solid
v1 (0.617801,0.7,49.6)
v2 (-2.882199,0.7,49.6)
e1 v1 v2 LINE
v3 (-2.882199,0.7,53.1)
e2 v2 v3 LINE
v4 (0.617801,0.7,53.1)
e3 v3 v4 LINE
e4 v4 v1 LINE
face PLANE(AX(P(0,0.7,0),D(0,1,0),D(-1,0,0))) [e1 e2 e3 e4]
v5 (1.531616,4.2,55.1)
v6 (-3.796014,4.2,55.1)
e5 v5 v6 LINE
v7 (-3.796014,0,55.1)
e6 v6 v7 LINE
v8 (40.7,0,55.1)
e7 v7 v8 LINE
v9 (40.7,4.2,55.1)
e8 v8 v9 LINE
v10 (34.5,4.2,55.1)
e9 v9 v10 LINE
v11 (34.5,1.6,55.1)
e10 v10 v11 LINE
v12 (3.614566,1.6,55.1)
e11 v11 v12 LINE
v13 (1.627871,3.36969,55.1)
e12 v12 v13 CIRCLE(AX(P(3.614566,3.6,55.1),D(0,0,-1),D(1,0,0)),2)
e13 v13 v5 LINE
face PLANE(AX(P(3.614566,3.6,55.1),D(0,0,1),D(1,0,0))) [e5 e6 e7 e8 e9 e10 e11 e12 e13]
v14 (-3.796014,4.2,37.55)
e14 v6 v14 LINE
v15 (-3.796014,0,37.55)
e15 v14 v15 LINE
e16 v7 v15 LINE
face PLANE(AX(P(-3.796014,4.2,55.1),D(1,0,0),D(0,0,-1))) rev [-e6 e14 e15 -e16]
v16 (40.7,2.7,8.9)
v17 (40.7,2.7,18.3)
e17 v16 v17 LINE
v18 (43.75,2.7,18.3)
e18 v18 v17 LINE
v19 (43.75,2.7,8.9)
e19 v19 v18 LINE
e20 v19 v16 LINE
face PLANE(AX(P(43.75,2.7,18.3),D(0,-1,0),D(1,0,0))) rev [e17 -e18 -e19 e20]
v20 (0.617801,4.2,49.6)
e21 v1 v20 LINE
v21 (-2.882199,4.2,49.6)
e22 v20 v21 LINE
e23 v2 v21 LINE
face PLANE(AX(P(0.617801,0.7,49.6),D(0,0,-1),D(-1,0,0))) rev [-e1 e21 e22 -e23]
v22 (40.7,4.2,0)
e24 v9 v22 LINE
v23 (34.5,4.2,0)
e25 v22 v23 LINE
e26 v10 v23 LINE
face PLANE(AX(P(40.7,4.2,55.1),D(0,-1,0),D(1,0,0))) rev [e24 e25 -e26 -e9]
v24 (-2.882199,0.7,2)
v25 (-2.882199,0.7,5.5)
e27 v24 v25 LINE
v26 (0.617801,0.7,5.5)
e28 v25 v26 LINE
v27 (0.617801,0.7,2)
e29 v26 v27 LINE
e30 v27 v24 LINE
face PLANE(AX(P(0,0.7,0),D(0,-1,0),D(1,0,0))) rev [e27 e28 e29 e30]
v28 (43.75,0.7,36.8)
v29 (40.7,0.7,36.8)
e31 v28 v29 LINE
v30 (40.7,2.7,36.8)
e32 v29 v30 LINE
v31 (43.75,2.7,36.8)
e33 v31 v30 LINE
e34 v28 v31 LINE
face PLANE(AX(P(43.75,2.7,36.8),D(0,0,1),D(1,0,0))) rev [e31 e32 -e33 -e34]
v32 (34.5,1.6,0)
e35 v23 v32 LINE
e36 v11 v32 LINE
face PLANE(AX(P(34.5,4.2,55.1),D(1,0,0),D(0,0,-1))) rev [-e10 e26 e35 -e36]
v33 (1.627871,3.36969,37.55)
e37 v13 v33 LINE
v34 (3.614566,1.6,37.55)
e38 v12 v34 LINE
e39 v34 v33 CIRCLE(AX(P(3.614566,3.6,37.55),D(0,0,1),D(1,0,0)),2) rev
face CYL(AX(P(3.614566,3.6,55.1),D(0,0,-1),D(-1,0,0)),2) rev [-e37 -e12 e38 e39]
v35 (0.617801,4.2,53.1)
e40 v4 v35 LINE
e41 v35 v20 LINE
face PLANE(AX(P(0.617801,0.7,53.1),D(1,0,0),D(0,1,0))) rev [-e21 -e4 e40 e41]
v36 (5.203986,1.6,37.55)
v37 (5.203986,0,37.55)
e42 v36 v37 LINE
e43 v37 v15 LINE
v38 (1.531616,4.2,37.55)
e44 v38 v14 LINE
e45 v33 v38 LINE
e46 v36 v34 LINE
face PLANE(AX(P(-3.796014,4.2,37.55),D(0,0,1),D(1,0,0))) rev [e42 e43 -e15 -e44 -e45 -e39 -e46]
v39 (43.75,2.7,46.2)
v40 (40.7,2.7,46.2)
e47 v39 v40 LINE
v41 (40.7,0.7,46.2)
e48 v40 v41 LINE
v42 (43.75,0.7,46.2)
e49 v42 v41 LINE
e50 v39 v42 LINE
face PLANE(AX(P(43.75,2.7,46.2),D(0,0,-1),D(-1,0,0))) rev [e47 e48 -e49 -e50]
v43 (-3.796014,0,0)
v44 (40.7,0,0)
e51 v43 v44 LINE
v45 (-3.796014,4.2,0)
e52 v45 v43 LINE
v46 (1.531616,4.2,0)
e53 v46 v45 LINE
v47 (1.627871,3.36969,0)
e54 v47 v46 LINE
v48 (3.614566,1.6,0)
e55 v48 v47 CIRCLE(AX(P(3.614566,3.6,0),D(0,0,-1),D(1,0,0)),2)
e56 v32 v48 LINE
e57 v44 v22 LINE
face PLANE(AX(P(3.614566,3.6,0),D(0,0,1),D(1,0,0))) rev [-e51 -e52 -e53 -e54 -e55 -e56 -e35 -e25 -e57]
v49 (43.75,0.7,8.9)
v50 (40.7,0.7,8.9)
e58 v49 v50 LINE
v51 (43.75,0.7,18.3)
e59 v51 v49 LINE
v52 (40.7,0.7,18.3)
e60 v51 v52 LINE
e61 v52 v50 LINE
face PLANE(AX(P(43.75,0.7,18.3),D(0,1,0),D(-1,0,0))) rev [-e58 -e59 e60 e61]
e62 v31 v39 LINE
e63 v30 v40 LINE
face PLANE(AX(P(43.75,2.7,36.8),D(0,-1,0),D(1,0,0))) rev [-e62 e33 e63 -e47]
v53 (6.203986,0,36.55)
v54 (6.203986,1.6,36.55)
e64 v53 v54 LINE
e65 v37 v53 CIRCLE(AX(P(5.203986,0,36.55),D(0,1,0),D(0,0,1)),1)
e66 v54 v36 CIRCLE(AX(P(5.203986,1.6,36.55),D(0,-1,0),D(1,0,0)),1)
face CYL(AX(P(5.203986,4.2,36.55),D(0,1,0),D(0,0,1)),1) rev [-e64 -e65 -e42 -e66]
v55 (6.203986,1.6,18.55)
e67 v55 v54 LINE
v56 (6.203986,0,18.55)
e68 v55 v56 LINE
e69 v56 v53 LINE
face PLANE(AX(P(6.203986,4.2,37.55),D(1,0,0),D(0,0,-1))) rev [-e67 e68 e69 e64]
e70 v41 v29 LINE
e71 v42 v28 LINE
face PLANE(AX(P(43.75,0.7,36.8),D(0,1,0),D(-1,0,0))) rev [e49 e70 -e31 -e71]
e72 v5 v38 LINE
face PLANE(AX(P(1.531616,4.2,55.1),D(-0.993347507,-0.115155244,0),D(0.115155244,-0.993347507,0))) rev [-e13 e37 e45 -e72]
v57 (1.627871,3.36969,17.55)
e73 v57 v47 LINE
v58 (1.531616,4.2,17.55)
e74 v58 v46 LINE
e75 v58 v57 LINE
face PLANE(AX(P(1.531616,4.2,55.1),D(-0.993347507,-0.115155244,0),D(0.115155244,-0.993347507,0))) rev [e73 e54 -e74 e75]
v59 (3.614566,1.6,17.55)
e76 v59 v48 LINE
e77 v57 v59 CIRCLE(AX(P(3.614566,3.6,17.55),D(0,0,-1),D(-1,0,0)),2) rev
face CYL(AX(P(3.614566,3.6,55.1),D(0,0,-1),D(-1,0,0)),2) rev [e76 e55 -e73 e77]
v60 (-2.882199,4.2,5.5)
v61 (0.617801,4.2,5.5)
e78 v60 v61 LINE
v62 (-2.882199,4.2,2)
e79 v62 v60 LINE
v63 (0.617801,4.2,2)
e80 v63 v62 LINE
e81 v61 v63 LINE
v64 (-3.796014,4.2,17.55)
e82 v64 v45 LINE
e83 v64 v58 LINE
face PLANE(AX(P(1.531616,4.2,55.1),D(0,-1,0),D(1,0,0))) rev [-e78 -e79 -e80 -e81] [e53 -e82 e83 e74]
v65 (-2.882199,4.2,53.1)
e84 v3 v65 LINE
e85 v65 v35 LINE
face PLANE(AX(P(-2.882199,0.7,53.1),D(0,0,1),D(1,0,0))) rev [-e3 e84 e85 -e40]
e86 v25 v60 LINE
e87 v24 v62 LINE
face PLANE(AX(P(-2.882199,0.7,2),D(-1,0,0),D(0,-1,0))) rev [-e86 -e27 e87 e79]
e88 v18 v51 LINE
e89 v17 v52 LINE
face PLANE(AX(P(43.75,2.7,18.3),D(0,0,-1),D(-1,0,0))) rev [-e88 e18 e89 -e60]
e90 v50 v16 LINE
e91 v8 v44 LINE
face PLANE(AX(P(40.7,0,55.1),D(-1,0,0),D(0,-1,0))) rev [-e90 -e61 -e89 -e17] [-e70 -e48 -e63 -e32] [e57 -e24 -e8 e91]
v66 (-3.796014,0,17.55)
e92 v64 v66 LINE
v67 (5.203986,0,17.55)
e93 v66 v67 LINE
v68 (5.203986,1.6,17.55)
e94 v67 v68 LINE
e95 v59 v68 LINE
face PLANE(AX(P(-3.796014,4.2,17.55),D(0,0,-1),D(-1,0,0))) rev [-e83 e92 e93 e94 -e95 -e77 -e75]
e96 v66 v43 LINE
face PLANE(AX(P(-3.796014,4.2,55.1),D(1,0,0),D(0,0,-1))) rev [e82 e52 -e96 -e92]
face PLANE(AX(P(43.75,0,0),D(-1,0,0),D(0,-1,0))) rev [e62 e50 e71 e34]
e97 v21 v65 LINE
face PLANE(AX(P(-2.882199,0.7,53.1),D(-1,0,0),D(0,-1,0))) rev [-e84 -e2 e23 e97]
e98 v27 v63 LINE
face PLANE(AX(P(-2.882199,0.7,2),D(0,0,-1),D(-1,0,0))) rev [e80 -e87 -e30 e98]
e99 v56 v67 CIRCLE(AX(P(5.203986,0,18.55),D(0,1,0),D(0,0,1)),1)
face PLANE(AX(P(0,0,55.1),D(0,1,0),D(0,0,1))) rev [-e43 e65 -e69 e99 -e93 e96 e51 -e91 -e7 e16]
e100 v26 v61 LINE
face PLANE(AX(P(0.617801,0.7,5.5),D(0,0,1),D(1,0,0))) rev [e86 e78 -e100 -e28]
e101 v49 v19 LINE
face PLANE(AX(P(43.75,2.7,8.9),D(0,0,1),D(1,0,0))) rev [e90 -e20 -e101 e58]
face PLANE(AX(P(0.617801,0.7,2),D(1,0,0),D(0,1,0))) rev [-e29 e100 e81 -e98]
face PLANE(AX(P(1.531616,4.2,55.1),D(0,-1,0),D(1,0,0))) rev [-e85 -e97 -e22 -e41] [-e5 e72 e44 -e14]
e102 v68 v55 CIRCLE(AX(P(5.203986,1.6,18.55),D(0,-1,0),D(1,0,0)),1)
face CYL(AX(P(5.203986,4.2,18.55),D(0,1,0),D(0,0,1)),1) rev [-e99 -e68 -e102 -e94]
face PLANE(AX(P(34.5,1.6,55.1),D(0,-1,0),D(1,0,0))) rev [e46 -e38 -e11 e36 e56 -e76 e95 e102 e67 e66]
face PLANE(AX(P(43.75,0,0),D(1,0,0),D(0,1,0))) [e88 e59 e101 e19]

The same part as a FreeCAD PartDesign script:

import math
import FreeCAD as App
import Part
import Sketcher

V = App.Vector


def edges_at(feature, points):
    """Names of the edges that pass closest to the given points."""
    edges = feature.Shape.Edges
    near = lambda p: min(range(len(edges)), key=lambda i: edges[i].distToShape(Part.Vertex(*p))[0])
    return sorted({f"Edge{near(p) + 1}" for p in points})


def add_polygon(sketch, points):
    """Adds a closed chain of lines whose ends are joined by coincident constraints."""
    first, n = sketch.GeometryCount, len(points)
    for a, b in zip(points, points[1:] + points[:1]):
        sketch.addGeometry(Part.LineSegment(App.Vector(*a, 0), App.Vector(*b, 0)), False)
    for i in range(n):
        sketch.addConstraint(Sketcher.Constraint("Coincident", first + i, 2, first + (i + 1) % n, 1))

doc = App.newDocument("Part")
body = doc.addObject("PartDesign::Body", "Body")

# Sketch on XY plane
sketch1 = body.newObject("Sketcher::SketchObject", "Sketch")
sketch1.AttachmentSupport = (doc.getObject("XY_Plane"), [""])
sketch1.MapMode = "FlatFace"
sketch1.addGeometry([
    Part.LineSegment(V(40.7, 0, 0), V(40.7, 4.2, 0)),  # 0
    Part.LineSegment(V(40.7, 4.2, 0), V(34.5, 4.2, 0)),  # 1
    Part.LineSegment(V(34.5, 4.2, 0), V(34.5, 1.6, 0)),  # 2
    Part.LineSegment(V(34.5, 1.6, 0), V(3.614566, 1.6, 0)),  # 3
    Part.ArcOfCircle(Part.Circle(V(3.614566, 3.6, 0), V(0, 0, 1), 2), math.radians(-173.387421), math.radians(-90)),  # 4
    Part.LineSegment(V(1.627871, 3.36969, 0), V(1.531616, 4.2, 0)),  # 5
    Part.LineSegment(V(1.531616, 4.2, 0), V(-3.796014, 4.2, 0)),  # 6
    Part.LineSegment(V(-3.796014, 4.2, 0), V(-3.796014, 0, 0)),  # 7
    Part.LineSegment(V(-3.796014, 0, 0), V(40.7, 0, 0)),  # 8
], False)
sketch1.addConstraint([
    Sketcher.Constraint("Coincident", 0, 2, 1, 1),
    Sketcher.Constraint("Coincident", 1, 2, 2, 1),
    Sketcher.Constraint("Coincident", 2, 2, 3, 1),
    Sketcher.Constraint("Tangent", 3, 2, 4, 2),
    Sketcher.Constraint("Tangent", 4, 1, 5, 1),
    Sketcher.Constraint("Coincident", 5, 2, 6, 1),
    Sketcher.Constraint("Coincident", 6, 2, 7, 1),
    Sketcher.Constraint("Coincident", 7, 2, 8, 1),
    Sketcher.Constraint("Coincident", 8, 2, 0, 1),
    Sketcher.Constraint("Vertical", 0),
    Sketcher.Constraint("Horizontal", 1),
    Sketcher.Constraint("Vertical", 2),
    Sketcher.Constraint("Horizontal", 3),
    Sketcher.Constraint("Horizontal", 6),
    Sketcher.Constraint("Vertical", 7),
    Sketcher.Constraint("Horizontal", 8),
    Sketcher.Constraint("PointOnObject", 7, 2, -1),
    Sketcher.Constraint("Horizontal", 1, 2, 5, 2),
    Sketcher.Constraint("Radius", 4, 2.0),
    Sketcher.Constraint("DistanceX", 1, 2, 1, 1, 6.2),
    Sketcher.Constraint("DistanceY", 0, 1, 0, 2, 4.2),
    Sketcher.Constraint("DistanceY", 2, 2, 2, 1, 2.6),
    Sketcher.Constraint("DistanceX", -1, 1, 0, 2, 40.7),
    Sketcher.Constraint("DistanceX", 6, 2, 6, 1, 5.32763),
    Sketcher.Constraint("Distance", 5, 0.835871),
    Sketcher.Constraint("DistanceX", 3, 2, 3, 1, 30.885434),
])
pad1 = body.newObject("PartDesign::Pad", "Pad")
pad1.Profile = sketch1
pad1.Length = 55.1

# Sketch on YZ plane
sketch2 = body.newObject("Sketcher::SketchObject", "Sketch001")
sketch2.AttachmentSupport = (doc.getObject("YZ_Plane"), [""])
sketch2.MapMode = "FlatFace"
sketch2.AttachmentOffset = App.Placement(V(0, 0, 40.7), App.Rotation())
add_polygon(sketch2, [(2.7, 18.3), (0.7, 18.3), (0.7, 8.9), (2.7, 8.9)])  # lines 0-3
add_polygon(sketch2, [(2.7, 46.2), (0.7, 46.2), (0.7, 36.8), (2.7, 36.8)])  # lines 4-7
sketch2.addConstraint([
    Sketcher.Constraint("Horizontal", 0),
    Sketcher.Constraint("Vertical", 1),
    Sketcher.Constraint("Horizontal", 2),
    Sketcher.Constraint("Vertical", 3),
    Sketcher.Constraint("Horizontal", 4),
    Sketcher.Constraint("Vertical", 5),
    Sketcher.Constraint("Horizontal", 6),
    Sketcher.Constraint("Vertical", 7),
    Sketcher.Constraint("Vertical", 1, 2, 4, 2),
    Sketcher.Constraint("Vertical", 3, 2, 6, 2),
    Sketcher.Constraint("Equal", 3, 5),
    Sketcher.Constraint("DistanceX", 0, 2, 0, 1, 2.0),
    Sketcher.Constraint("DistanceY", 1, 2, 1, 1, 9.4),
    Sketcher.Constraint("DistanceX", -1, 1, 0, 2, 0.7),
    Sketcher.Constraint("DistanceY", -1, 1, 0, 2, 18.3),
    Sketcher.Constraint("DistanceY", -1, 1, 4, 2, 46.2),
])
pad2 = body.newObject("PartDesign::Pad", "Pad001")
pad2.Profile = sketch2
pad2.Length = 3.05

# Sketch on XZ plane
sketch3 = body.newObject("Sketcher::SketchObject", "Sketch002")
sketch3.AttachmentSupport = (doc.getObject("XZ_Plane"), [""])
sketch3.MapMode = "FlatFace"
sketch3.AttachmentOffset = App.Placement(V(0, 0, -4.2), App.Rotation())
add_polygon(sketch3, [(-2.882199, 49.6), (-2.882199, 53.1), (0.617801, 53.1), (0.617801, 49.6)])  # lines 0-3
add_polygon(sketch3, [(-2.882199, 2), (-2.882199, 5.5), (0.617801, 5.5), (0.617801, 2)])  # lines 4-7
sketch3.addConstraint([
    Sketcher.Constraint("Vertical", 0),
    Sketcher.Constraint("Horizontal", 1),
    Sketcher.Constraint("Vertical", 2),
    Sketcher.Constraint("Horizontal", 3),
    Sketcher.Constraint("Vertical", 4),
    Sketcher.Constraint("Horizontal", 5),
    Sketcher.Constraint("Vertical", 6),
    Sketcher.Constraint("Horizontal", 7),
    Sketcher.Constraint("Vertical", 3, 2, 4, 2),
    Sketcher.Constraint("Vertical", 2, 2, 5, 2),
    Sketcher.Constraint("Equal", 7, 0),
    Sketcher.Constraint("Equal", 2, 4),
    Sketcher.Constraint("DistanceX", 1, 1, 1, 2, 3.5),
    Sketcher.Constraint("DistanceY", -1, 1, 6, 2, 2.0),
    Sketcher.Constraint("DistanceY", -1, 1, 0, 2, 53.1),
    Sketcher.Constraint("DistanceX", 0, 2, -1, 1, 2.882199),
])
pocket1 = body.newObject("PartDesign::Pocket", "Pocket")
pocket1.Profile = sketch3
pocket1.Length = 3.5
pocket1.Reversed = True

# Sketch on XZ plane
sketch4 = body.newObject("Sketcher::SketchObject", "Sketch003")
sketch4.AttachmentSupport = (doc.getObject("XZ_Plane"), [""])
sketch4.MapMode = "FlatFace"
add_polygon(sketch4, [(-3.796014, 37.55), (-3.796014, 17.55), (6.203986, 17.55), (6.203986, 37.55)])  # lines 0-3
sketch4.addConstraint([
    Sketcher.Constraint("Vertical", 0),
    Sketcher.Constraint("Horizontal", 1),
    Sketcher.Constraint("Vertical", 2),
    Sketcher.Constraint("Horizontal", 3),
    Sketcher.Constraint("DistanceX", 1, 1, 1, 2, 10.0),
    Sketcher.Constraint("DistanceY", 0, 2, 0, 1, 20.0),
    Sketcher.Constraint("DistanceY", -1, 1, 0, 2, 17.55),
    Sketcher.Constraint("DistanceX", 0, 2, -1, 1, 3.796014),
])
pocket2 = body.newObject("PartDesign::Pocket", "Pocket001")
pocket2.Profile = sketch4
pocket2.Type = "ThroughAll"
doc.recompute()

fillet = body.newObject("PartDesign::Fillet", "Fillet")
fillet.Base = (pocket2, edges_at(pocket2, [(6.204, 0.8, 37.55), (6.204, 0.8, 17.55)]))
fillet.Radius = 1

doc.recompute()
